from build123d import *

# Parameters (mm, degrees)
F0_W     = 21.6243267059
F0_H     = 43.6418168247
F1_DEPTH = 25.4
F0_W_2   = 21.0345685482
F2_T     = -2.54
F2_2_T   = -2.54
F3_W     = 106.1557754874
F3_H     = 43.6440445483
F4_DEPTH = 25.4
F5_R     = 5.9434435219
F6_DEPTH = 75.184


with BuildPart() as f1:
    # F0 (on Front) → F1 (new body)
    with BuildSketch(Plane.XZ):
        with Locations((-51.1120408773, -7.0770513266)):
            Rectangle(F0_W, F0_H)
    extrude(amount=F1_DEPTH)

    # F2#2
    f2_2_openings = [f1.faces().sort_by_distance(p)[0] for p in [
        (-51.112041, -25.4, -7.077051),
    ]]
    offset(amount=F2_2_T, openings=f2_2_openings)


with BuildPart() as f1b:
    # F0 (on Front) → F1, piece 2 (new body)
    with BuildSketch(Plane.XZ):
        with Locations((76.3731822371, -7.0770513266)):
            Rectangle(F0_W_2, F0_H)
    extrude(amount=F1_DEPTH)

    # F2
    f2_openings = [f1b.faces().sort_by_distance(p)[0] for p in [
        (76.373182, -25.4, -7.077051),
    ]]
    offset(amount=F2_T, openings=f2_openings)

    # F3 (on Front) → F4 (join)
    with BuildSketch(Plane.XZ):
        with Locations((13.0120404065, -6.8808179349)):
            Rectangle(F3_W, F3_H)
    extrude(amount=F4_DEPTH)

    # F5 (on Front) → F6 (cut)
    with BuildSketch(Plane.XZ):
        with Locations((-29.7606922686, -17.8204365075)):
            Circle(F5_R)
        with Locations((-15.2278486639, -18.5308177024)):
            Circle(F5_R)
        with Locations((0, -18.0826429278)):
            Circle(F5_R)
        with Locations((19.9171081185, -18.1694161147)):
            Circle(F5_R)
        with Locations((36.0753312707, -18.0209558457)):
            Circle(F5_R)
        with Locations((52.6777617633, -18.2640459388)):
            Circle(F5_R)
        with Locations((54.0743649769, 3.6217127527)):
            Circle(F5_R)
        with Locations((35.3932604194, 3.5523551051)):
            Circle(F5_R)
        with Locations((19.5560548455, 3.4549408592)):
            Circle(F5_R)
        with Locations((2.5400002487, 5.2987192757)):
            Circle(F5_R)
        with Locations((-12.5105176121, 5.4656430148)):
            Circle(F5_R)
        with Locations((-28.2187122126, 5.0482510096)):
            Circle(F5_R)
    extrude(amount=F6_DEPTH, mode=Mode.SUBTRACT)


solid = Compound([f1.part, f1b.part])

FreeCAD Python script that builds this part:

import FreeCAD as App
import Part
import Sketcher

V = App.Vector
Q = App.Units.Quantity


def faces_at(feature, points):
    """Names of the faces that lie closest to the given points."""
    faces = feature.Shape.Faces
    near = lambda p: min(range(len(faces)), key=lambda i: faces[i].distToShape(Part.Vertex(*p))[0])
    return sorted({f"Face{near(p) + 1}" for p in points})


def add_polygon(sketch, points):
    """Adds a closed chain of lines whose ends are joined by coincident constraints."""
    first, n = sketch.GeometryCount, len(points)
    for a, b in zip(points, points[1:] + points[:1]):
        sketch.addGeometry(Part.LineSegment(App.Vector(*a, 0), App.Vector(*b, 0)), False)
    for i in range(n):
        sketch.addConstraint(Sketcher.Constraint("Coincident", first + i, 2, first + (i + 1) % n, 1))

doc = App.newDocument("Part")
body = doc.addObject("PartDesign::Body", "Body")

sketch1 = doc.addObject("Sketcher::SketchObject", "Sketch")
body.addObject(sketch1)
sketch1.AttachmentSupport = (doc.XZ_Plane, [""])
sketch1.MapMode = "FlatFace"
add_polygon(sketch1, [(-61.924204, 14.743857), (-61.924204, -28.89796), (-40.299878, -28.89796), (-40.299878, 14.743857)])
sketch1.addConstraint([
    Sketcher.Constraint("Vertical", 0),
    Sketcher.Constraint("Horizontal", 1),
    Sketcher.Constraint("Vertical", 2),
    Sketcher.Constraint("Horizontal", 3),
    Sketcher.Constraint("DistanceX", 1, 1, 1, 2, 21.624327),
    Sketcher.Constraint("DistanceY", 0, 2, 0, 1, 43.641817),
    Sketcher.Constraint("DistanceY", 0, 2, -1, 1, 28.89796),
    Sketcher.Constraint("DistanceX", 0, 2, -1, 1, 61.924204),
])
pad1 = doc.addObject("PartDesign::Pad", "Pad")
body.addObject(pad1)
pad1.Profile = sketch1
pad1.Length = Q("1 in")
doc.recompute()

thickness = doc.addObject("PartDesign::Thickness", "Thickness")
body.addObject(thickness)
thickness.Base = (pad1, faces_at(pad1, [(-51.112, -25.4, -7.077)]))
thickness.Value = Q("0.1 in")
thickness.Reversed = True
thickness.Join = "Arc"
body2 = doc.addObject("PartDesign::Body", "Body001")

sketch2 = doc.addObject("Sketcher::SketchObject", "Sketch001")
body2.addObject(sketch2)
sketch2.AttachmentSupport = (doc.getObject("XZ_Plane001"), [""])
sketch2.MapMode = "FlatFace"
add_polygon(sketch2, [(65.855898, 14.743857), (65.855898, -28.89796), (86.890467, -28.89796), (86.890467, 14.743857)])
sketch2.addConstraint([
    Sketcher.Constraint("Vertical", 0),
    Sketcher.Constraint("Horizontal", 1),
    Sketcher.Constraint("Vertical", 2),
    Sketcher.Constraint("Horizontal", 3),
    Sketcher.Constraint("DistanceX", 1, 1, 1, 2, 21.034569),
    Sketcher.Constraint("DistanceY", 0, 2, 0, 1, 43.641817),
    Sketcher.Constraint("DistanceY", 0, 2, -1, 1, 28.89796),
    Sketcher.Constraint("DistanceX", -1, 1, 0, 2, 65.855898),
])
pad2 = doc.addObject("PartDesign::Pad", "Pad001")
body2.addObject(pad2)
pad2.Profile = sketch2
pad2.Length = Q("1 in")
doc.recompute()

thickness2 = doc.addObject("PartDesign::Thickness", "Thickness001")
body2.addObject(thickness2)
thickness2.Base = (pad2, faces_at(pad2, [(76.373, -25.4, -7.077)]))
thickness2.Value = Q("0.1 in")
thickness2.Reversed = True
thickness2.Join = "Arc"

sketch3 = doc.addObject("Sketcher::SketchObject", "Sketch002")
body2.addObject(sketch3)
sketch3.AttachmentSupport = (doc.getObject("XZ_Plane001"), [""])
sketch3.MapMode = "FlatFace"
add_polygon(sketch3, [(-40.065847, 14.941204), (-40.065847, -28.70284), (66.089928, -28.70284), (66.089928, 14.941204)])
sketch3.addConstraint([
    Sketcher.Constraint("Vertical", 0),
    Sketcher.Constraint("Horizontal", 1),
    Sketcher.Constraint("Vertical", 2),
    Sketcher.Constraint("Horizontal", 3),
    Sketcher.Constraint("DistanceX", 1, 1, 1, 2, 106.155775),
    Sketcher.Constraint("DistanceY", 0, 2, 0, 1, 43.644045),
    Sketcher.Constraint("DistanceY", 0, 2, -1, 1, 28.70284),
    Sketcher.Constraint("DistanceX", -1, 1, 1, 2, 66.089928),
])
pad3 = doc.addObject("PartDesign::Pad", "Pad002")
body2.addObject(pad3)
pad3.Profile = sketch3
pad3.Length = Q("1 in")

sketch4 = doc.addObject("Sketcher::SketchObject", "Sketch003")
body2.addObject(sketch4)
sketch4.AttachmentSupport = (doc.getObject("XZ_Plane001"), [""])
sketch4.MapMode = "FlatFace"
sketch4.addGeometry([
    Part.Circle(V(-29.760692, -17.820437, 0), V(0, 0, 1), 5.943444),
    Part.Circle(V(-15.227849, -18.530818, 0), V(0, 0, 1), 5.943444),
    Part.Circle(V(0, -18.082643, 0), V(0, 0, 1), 5.943444),
    Part.Circle(V(19.917108, -18.169416, 0), V(0, 0, 1), 5.943444),
    Part.Circle(V(36.075331, -18.020956, 0), V(0, 0, 1), 5.943444),
    Part.Circle(V(52.677762, -18.264046, 0), V(0, 0, 1), 5.943444),
    Part.Circle(V(54.074365, 3.621713, 0), V(0, 0, 1), 5.943444),
    Part.Circle(V(35.39326, 3.552355, 0), V(0, 0, 1), 5.943444),
    Part.Circle(V(19.556055, 3.454941, 0), V(0, 0, 1), 5.943444),
    Part.Circle(V(2.54, 5.298719, 0), V(0, 0, 1), 5.943444),
    Part.Circle(V(-12.510518, 5.465643, 0), V(0, 0, 1), 5.943444),
    Part.Circle(V(-28.218712, 5.048251, 0), V(0, 0, 1), 5.943444),
], False)
sketch4.addConstraint([
    Sketcher.Constraint("Equal", 0, 1),
    Sketcher.Constraint("Equal", 1, 2),
    Sketcher.Constraint("Equal", 2, 3),
    Sketcher.Constraint("Equal", 3, 4),
    Sketcher.Constraint("Equal", 4, 5),
    Sketcher.Constraint("Equal", 5, 6),
    Sketcher.Constraint("Equal", 6, 7),
    Sketcher.Constraint("Equal", 7, 8),
    Sketcher.Constraint("Equal", 8, 9),
    Sketcher.Constraint("Equal", 9, 10),
    Sketcher.Constraint("Equal", 10, 11),
    Sketcher.Constraint("PointOnObject", 2, 3, -2),
    Sketcher.Constraint("DistanceX", -1, 1, 9, 3, Q("0.1 in")),
    Sketcher.Constraint("Diameter", 0, 11.886887),
    Sketcher.Constraint("DistanceY", 1, 3, 3, 3, 0.361402),
    Sketcher.Constraint("DistanceX", 0, 3, 3, 3, 49.6778),
    Sketcher.Constraint("DistanceX", 7, 3, 5, 3, 17.284501),
    Sketcher.Constraint("DistanceY", 5, 3, 7, 3, 21.816401),
    Sketcher.Constraint("DistanceY", 2, 3, 7, 3, 21.634998),
    Sketcher.Constraint("DistanceX", 1, 3, -1, 1, 15.227849),
    Sketcher.Constraint("DistanceX", -1, 1, 3, 3, 19.917108),
    Sketcher.Constraint("DistanceX", -1, 1, 4, 3, 36.075331),
    Sketcher.Constraint("DistanceX", -1, 1, 5, 3, 52.677762),
    Sketcher.Constraint("DistanceY", -1, 1, 8, 3, 3.454941),
    Sketcher.Constraint("DistanceY", -1, 1, 9, 3, 5.298719),
    Sketcher.Constraint("DistanceY", -1, 1, 11, 3, 5.048251),
    Sketcher.Constraint("DistanceY", 1, 3, 0, 3, 0.710381),
    Sketcher.Constraint("DistanceY", 3, 3, 4, 3, 0.14846),
    Sketcher.Constraint("DistanceY", 5, 3, 4, 3, 0.24309),
    Sketcher.Constraint("DistanceY", 5, 3, 6, 3, 21.885759),
    Sketcher.Constraint("DistanceX", 8, 3, 6, 3, 34.51831),
    Sketcher.Constraint("DistanceY", 8, 3, 6, 3, 0.166772),
    Sketcher.Constraint("DistanceX", 1, 3, 10, 3, 2.717331),
    Sketcher.Constraint("DistanceY", 1, 3, 10, 3, 23.996461),
    Sketcher.Constraint("DistanceX", 0, 3, 11, 3, 1.54198),
    Sketcher.Constraint("DistanceX", -1, 1, 6, 3, 54.074365),
])
pocket1 = doc.addObject("PartDesign::Pocket", "Pocket")
body2.addObject(pocket1)
pocket1.Profile = sketch4
pocket1.Length = Q("2.96 in")
pocket1.Reversed = True

doc.recompute()
